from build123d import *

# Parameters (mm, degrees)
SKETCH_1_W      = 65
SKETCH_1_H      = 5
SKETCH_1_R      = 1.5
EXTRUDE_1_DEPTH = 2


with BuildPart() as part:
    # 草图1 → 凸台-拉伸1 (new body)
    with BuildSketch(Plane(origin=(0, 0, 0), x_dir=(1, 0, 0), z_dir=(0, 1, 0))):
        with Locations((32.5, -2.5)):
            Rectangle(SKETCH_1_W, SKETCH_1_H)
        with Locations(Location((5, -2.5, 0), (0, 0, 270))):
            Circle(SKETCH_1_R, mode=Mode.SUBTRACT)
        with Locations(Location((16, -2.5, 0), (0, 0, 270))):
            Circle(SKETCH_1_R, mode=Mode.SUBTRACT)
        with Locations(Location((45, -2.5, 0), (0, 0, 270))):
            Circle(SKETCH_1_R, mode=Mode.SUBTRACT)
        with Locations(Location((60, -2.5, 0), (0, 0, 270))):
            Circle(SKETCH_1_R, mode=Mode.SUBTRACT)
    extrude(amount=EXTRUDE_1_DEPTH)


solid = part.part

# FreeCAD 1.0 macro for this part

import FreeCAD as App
import Part
import Sketcher
Q = App.Units.Quantity


def add_polygon(sketch, points):
    """Adds a closed chain of lines whose ends are joined by coincident constraints."""
    first, n = sketch.GeometryCount, len(points)
    for a, b in zip(points, points[1:] + points[:1]):
        sketch.addGeometry(Part.LineSegment(App.Vector(*a, 0), App.Vector(*b, 0)), False)
    for i in range(n):
        sketch.addConstraint(Sketcher.Constraint("Coincident", first + i, 2, first + (i + 1) % n, 1))

doc = App.newDocument("Part")
body = doc.addObject("PartDesign::Body", "Body")

# Sketch on XZ plane
sketch1 = body.newObject("Sketcher::SketchObject", "Sketch")
sketch1.AttachmentSupport = (doc.getObject("XZ_Plane"), [""])
sketch1.MapMode = "FlatFace"
add_polygon(sketch1, [(0, 0), (0, 5), (65, 5), (65, 0)])  # lines 0-3
sketch1.addGeometry(Part.Circle(App.Vector(5, 2.5, 0), App.Vector(0, 0, 1), 1.5), False)  # 4
sketch1.addGeometry(Part.Circle(App.Vector(16, 2.5, 0), App.Vector(0, 0, 1), 1.5), False)  # 5
sketch1.addGeometry(Part.Circle(App.Vector(45, 2.5, 0), App.Vector(0, 0, 1), 1.5), False)  # 6
sketch1.addGeometry(Part.Circle(App.Vector(60, 2.5, 0), App.Vector(0, 0, 1), 1.5), False)  # 7
sketch1.addConstraint(Sketcher.Constraint("Vertical", 0))
sketch1.addConstraint(Sketcher.Constraint("Horizontal", 1))
sketch1.addConstraint(Sketcher.Constraint("Vertical", 2))
sketch1.addConstraint(Sketcher.Constraint("Horizontal", 3))
sketch1.addConstraint(Sketcher.Constraint("Coincident", 3, 2, -1, 1))
sketch1.addConstraint(Sketcher.Constraint("Equal", 4, 5))
sketch1.addConstraint(Sketcher.Constraint("Equal", 5, 6))
sketch1.addConstraint(Sketcher.Constraint("Equal", 6, 7))
sketch1.addConstraint(Sketcher.Constraint("Horizontal", 4, 3, 5, 3))
sketch1.addConstraint(Sketcher.Constraint("Horizontal", 5, 3, 6, 3))
sketch1.addConstraint(Sketcher.Constraint("Horizontal", 6, 3, 7, 3))
sketch1.addConstraint(Sketcher.Constraint("Diameter", 4, Q("3 mm")))
sketch1.addConstraint(Sketcher.Constraint("DistanceX", 1, 1, 1, 2, Q("65 mm")))
sketch1.addConstraint(Sketcher.Constraint("DistanceY", 0, 1, 0, 2, Q("5 mm")))
sketch1.addConstraint(Sketcher.Constraint("DistanceX", -1, 1, 4, 3, Q("5 mm")))
sketch1.addConstraint(Sketcher.Constraint("DistanceX", -1, 1, 5, 3, Q("16 mm")))
sketch1.addConstraint(Sketcher.Constraint("DistanceX", -1, 1, 6, 3, Q("45 mm")))
sketch1.addConstraint(Sketcher.Constraint("DistanceX", -1, 1, 7, 3, Q("60 mm")))
sketch1.addConstraint(Sketcher.Constraint("DistanceY", -1, 1, 4, 3, Q("2.5 mm")))
pad1 = body.newObject("PartDesign::Pad", "Pad")
pad1.Profile = sketch1
pad1.Length = 2
pad1.Reversed = True

doc.recompute()
